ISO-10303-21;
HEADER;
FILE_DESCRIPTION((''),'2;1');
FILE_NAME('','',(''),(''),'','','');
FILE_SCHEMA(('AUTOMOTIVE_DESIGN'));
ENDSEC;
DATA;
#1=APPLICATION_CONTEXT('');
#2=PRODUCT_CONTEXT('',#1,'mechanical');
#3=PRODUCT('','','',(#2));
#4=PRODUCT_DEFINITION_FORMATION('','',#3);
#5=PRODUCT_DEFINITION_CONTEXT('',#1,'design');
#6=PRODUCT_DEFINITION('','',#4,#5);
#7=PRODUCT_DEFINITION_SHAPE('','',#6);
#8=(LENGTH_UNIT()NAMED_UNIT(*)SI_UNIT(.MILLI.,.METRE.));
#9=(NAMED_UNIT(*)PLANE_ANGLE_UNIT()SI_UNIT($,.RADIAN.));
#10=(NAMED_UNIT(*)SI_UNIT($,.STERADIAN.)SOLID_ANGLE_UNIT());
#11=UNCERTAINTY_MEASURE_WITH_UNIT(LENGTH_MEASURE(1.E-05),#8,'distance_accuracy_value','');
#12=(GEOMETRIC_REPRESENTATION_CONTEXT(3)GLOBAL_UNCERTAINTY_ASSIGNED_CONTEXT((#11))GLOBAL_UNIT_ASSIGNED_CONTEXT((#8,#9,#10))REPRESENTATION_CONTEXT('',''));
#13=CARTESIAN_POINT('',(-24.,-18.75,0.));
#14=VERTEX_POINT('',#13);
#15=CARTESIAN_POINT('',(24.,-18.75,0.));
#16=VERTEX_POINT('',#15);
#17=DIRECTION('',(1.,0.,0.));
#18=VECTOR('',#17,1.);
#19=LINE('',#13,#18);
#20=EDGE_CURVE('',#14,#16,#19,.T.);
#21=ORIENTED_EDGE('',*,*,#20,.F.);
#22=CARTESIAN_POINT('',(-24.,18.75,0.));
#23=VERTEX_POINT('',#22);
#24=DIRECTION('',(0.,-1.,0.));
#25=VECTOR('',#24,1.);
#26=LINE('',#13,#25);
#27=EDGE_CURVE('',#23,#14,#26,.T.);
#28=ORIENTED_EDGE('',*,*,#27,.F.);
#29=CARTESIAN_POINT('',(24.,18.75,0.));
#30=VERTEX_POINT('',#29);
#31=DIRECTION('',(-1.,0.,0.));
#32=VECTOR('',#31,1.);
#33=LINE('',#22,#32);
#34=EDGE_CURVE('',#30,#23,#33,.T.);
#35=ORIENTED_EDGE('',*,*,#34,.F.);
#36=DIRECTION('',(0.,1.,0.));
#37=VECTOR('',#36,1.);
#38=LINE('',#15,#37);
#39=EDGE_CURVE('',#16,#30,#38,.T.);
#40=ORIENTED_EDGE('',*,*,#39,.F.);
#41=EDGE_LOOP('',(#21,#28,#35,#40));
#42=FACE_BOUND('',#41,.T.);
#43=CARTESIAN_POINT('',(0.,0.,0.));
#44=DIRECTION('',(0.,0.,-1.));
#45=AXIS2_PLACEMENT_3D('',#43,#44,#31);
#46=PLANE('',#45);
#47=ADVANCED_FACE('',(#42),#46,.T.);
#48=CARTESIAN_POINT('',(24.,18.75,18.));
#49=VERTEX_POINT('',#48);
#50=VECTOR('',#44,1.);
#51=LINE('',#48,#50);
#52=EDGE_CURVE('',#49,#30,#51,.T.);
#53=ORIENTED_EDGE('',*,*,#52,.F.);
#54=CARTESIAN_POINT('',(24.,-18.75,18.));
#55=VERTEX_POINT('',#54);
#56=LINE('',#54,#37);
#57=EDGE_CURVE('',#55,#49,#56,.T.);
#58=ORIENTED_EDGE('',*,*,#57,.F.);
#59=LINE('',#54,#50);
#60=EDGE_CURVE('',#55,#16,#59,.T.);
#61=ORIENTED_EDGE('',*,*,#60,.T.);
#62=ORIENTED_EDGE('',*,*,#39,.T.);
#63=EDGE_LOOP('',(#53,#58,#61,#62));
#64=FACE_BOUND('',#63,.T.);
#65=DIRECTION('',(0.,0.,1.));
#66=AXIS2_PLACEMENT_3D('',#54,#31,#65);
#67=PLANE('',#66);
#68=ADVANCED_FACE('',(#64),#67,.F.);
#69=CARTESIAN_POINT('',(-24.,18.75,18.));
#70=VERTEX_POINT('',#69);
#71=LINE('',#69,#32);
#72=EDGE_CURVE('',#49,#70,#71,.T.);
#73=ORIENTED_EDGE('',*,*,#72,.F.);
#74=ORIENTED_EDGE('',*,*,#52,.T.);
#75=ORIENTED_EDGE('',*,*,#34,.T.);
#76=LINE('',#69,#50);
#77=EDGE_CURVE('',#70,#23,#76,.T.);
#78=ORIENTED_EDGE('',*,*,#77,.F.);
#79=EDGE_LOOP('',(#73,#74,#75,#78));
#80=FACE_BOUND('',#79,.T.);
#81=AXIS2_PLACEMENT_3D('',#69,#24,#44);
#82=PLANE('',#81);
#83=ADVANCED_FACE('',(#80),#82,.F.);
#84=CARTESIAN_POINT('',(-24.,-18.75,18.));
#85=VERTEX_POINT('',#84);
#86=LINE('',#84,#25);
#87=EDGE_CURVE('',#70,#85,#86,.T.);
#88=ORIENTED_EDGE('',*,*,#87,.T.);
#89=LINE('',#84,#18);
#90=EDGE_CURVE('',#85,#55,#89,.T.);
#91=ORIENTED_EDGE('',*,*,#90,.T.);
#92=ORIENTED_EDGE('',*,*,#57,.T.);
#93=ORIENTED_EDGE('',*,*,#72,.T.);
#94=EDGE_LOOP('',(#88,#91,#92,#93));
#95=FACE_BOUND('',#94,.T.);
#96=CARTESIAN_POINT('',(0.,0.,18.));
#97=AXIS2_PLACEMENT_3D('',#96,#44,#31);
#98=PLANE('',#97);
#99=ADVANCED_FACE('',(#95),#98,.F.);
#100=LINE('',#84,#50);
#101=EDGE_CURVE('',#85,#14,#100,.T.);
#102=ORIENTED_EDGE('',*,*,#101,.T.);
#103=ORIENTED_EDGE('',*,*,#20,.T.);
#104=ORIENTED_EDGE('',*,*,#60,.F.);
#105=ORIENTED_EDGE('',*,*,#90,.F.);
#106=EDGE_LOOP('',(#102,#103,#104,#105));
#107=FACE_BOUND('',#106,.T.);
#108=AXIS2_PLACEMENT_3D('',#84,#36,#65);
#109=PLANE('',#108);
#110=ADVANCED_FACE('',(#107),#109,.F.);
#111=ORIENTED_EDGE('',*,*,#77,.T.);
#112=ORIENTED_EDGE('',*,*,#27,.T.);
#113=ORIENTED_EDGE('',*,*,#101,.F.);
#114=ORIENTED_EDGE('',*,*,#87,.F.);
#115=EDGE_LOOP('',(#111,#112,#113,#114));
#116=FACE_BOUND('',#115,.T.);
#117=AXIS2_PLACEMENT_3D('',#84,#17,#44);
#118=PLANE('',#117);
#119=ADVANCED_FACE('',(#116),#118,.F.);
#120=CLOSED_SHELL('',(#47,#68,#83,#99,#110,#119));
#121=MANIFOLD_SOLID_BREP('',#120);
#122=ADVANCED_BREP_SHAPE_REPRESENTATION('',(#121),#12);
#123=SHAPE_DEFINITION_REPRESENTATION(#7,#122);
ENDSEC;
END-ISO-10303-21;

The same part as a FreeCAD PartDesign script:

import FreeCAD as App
import Part
import Sketcher

V = App.Vector

doc = App.newDocument("Part")
body = doc.addObject("PartDesign::Body", "Body")

# Sketch on XY plane
sketch1 = body.newObject("Sketcher::SketchObject", "Sketch")
sketch1.AttachmentSupport = (doc.getObject("XY_Plane"), [""])
sketch1.MapMode = "FlatFace"
sketch1.addGeometry(Part.LineSegment(V(-24, 19, 0), V(-24, -19, 0)), False)
sketch1.addGeometry(Part.LineSegment(V(-24, -19, 0), V(24, -19, 0)), False)
sketch1.addGeometry(Part.LineSegment(V(24, -19, 0), V(24, 19, 0)), False)
sketch1.addGeometry(Part.LineSegment(V(24, 19, 0), V(-24, 19, 0)), False)
sketch1.addConstraint(Sketcher.Constraint("Coincident", 0, 2, 1, 1))
sketch1.addConstraint(Sketcher.Constraint("Coincident", 1, 2, 2, 1))
sketch1.addConstraint(Sketcher.Constraint("Coincident", 2, 2, 3, 1))
sketch1.addConstraint(Sketcher.Constraint("Coincident", 3, 2, 0, 1))
sketch1.addConstraint(Sketcher.Constraint("Vertical", 0))
sketch1.addConstraint(Sketcher.Constraint("Horizontal", 1))
sketch1.addConstraint(Sketcher.Constraint("Vertical", 2))
sketch1.addConstraint(Sketcher.Constraint("Horizontal", 3))
sketch1.addConstraint(Sketcher.Constraint("Symmetric", 0, 2, 2, 2, -1, 1))
sketch1.addConstraint(Sketcher.Constraint("DistanceX", 1, 1, 1, 2, 48.0))
sketch1.addConstraint(Sketcher.Constraint("DistanceY", 0, 2, 0, 1, 37.5))
pad1 = body.newObject("PartDesign::Pad", "Pad")
pad1.Profile = sketch1
pad1.Length = 18

doc.recompute()
